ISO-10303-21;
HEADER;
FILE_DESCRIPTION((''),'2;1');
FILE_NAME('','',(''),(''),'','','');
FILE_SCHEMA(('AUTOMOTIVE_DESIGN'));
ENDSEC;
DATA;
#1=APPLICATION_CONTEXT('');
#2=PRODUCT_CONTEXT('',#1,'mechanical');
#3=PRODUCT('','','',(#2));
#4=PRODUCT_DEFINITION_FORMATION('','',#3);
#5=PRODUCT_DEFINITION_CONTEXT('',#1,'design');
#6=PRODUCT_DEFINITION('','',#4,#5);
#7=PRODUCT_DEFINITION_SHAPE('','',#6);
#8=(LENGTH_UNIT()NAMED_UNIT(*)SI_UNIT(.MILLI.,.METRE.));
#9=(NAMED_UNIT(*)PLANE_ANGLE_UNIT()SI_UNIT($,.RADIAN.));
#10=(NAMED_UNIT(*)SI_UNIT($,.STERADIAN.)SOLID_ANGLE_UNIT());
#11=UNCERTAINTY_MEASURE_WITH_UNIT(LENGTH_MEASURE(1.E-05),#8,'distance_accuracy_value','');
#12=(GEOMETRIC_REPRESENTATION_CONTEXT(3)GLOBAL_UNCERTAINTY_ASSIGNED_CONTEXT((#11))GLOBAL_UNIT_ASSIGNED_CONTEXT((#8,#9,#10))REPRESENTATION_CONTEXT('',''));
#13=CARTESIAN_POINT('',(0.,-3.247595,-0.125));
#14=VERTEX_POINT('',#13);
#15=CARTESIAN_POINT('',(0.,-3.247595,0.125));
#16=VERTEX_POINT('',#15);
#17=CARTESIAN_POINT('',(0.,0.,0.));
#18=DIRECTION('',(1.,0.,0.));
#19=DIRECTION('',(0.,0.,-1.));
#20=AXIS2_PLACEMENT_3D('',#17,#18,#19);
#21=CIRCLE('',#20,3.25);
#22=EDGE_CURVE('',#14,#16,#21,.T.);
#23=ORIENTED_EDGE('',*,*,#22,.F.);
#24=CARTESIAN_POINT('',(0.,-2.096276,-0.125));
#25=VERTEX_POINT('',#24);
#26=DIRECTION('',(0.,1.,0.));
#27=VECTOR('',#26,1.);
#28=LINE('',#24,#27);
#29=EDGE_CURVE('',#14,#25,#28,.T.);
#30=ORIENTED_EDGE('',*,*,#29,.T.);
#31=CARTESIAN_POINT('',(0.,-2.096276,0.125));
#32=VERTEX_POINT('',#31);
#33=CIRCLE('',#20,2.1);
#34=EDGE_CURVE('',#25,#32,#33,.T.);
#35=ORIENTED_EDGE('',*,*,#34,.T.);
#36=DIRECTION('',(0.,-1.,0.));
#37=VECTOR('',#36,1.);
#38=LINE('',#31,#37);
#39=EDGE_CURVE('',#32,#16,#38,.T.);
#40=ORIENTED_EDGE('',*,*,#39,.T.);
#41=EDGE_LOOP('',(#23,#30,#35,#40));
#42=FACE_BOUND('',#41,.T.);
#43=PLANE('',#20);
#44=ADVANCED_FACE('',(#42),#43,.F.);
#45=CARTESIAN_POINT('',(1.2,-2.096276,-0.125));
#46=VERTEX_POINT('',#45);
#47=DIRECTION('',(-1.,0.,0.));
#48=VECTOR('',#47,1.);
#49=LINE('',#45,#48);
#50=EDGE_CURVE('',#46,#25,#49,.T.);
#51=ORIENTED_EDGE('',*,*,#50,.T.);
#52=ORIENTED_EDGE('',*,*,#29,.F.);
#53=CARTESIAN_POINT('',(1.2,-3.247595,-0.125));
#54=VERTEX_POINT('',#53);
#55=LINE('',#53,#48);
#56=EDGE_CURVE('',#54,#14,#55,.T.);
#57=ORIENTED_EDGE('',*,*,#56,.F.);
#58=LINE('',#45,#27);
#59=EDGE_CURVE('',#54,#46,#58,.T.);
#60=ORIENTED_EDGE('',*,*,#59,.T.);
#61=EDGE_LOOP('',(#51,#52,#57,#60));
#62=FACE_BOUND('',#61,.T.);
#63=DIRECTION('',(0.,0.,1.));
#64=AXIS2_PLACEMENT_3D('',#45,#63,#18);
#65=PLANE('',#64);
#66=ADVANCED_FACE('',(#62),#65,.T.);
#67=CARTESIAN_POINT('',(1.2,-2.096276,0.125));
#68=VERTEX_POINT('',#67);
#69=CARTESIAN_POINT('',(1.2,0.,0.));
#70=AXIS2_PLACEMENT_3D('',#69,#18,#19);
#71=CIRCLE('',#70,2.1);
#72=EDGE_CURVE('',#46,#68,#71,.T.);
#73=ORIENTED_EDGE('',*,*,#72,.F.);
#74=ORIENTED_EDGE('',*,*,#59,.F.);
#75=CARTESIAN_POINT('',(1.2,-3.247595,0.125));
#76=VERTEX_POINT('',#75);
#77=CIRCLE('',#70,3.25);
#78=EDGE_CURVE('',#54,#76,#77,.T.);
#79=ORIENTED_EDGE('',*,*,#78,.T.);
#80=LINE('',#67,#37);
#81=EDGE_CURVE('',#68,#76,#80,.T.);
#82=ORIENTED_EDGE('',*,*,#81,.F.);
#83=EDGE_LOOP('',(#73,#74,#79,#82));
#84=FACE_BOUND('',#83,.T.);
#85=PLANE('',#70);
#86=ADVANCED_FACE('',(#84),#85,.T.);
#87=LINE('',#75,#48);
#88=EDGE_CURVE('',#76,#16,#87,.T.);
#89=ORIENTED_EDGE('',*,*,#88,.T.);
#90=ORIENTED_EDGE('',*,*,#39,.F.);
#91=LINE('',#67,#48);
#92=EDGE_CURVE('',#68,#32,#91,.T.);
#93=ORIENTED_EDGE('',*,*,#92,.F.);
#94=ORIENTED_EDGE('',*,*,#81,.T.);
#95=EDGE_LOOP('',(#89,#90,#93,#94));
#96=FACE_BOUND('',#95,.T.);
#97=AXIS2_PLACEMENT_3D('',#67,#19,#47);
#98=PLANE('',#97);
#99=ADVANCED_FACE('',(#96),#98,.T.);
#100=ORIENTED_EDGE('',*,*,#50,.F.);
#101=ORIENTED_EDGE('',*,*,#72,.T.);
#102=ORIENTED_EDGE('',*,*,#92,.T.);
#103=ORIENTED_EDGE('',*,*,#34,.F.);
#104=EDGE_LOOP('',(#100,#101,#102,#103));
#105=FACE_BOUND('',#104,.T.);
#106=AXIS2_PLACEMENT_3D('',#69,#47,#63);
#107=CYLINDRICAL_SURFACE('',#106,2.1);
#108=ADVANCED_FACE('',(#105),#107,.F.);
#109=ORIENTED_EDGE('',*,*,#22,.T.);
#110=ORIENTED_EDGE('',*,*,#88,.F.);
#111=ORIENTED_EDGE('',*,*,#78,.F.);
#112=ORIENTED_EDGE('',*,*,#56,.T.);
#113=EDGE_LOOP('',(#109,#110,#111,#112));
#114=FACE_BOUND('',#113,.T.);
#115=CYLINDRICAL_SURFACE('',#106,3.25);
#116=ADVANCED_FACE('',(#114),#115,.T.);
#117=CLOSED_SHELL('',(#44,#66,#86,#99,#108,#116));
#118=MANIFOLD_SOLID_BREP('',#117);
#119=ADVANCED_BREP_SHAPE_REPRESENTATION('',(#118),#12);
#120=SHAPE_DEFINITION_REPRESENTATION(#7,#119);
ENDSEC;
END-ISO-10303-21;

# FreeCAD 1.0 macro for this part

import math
import FreeCAD as App
import Part
import Sketcher
from FreeCAD import Vector

doc = App.newDocument("Part")
body = doc.addObject("PartDesign::Body", "Body")

sketch1 = body.newObject("Sketcher::SketchObject", "Sketch")
sketch1.AttachmentSupport = (doc.getObject("YZ_Plane"), [""])
sketch1.MapMode = "FlatFace"
sketch1.addGeometry([
    Part.Circle(Vector(0, 0, 0), Vector(0, 0, 1), 3.2),
    Part.Circle(Vector(0, 0, 0), Vector(0, 0, 1), 2.1),
], False)
sketch1.addConstraint([
    Sketcher.Constraint("Coincident", 0, 3, -1, 1),
    Sketcher.Constraint("Coincident", 1, 3, -1, 1),
    Sketcher.Constraint("Diameter", 0, 6.5),
    Sketcher.Constraint("Diameter", 1, 4.2),
])
pad1 = body.newObject("PartDesign::Pad", "Pad")
pad1.Profile = sketch1
pad1.Length = 1.2

sketch2 = body.newObject("Sketcher::SketchObject", "Sketch001")
sketch2.AttachmentSupport = (doc.getObject("YZ_Plane"), [""])
sketch2.MapMode = "FlatFace"
sketch2.addGeometry([
    Part.LineSegment(Vector(-2.1, 0.12, 0), Vector(-3.25, 0.12, 0)),
    Part.ArcOfCircle(Part.Circle(Vector(0, 0, 0), Vector(0, 0, 1), 3.25), math.radians(177.8), math.radians(182.2)),
    Part.LineSegment(Vector(-3.25, -0.12, 0), Vector(-2.1, -0.12, 0)),
    Part.ArcOfCircle(Part.Circle(Vector(0, 0, 0), Vector(0, 0, 1), 2.1), math.radians(176.59), math.radians(183.41)),
], False)
sketch2.addConstraint([
    Sketcher.Constraint("Coincident", 0, 2, 1, 1),
    Sketcher.Constraint("Coincident", 1, 2, 2, 1),
    Sketcher.Constraint("Coincident", 2, 2, 3, 2),
    Sketcher.Constraint("Coincident", 3, 1, 0, 1),
    Sketcher.Constraint("Horizontal", 0),
    Sketcher.Constraint("Horizontal", 2),
    Sketcher.Constraint("Coincident", 1, 3, -1, 1),
    Sketcher.Constraint("Coincident", 3, 3, -1, 1),
    Sketcher.Constraint("Vertical", 0, 2, 1, 2),
    Sketcher.Constraint("Radius", 3, 2.1),
    Sketcher.Constraint("Radius", 1, 3.25),
    Sketcher.Constraint("DistanceY", 1, 2, 0, 2, 0.25),
])
pocket1 = body.newObject("PartDesign::Pocket", "Pocket")
pocket1.Profile = sketch2
pocket1.Type = "ThroughAll"
pocket1.Reversed = True

doc.recompute()
